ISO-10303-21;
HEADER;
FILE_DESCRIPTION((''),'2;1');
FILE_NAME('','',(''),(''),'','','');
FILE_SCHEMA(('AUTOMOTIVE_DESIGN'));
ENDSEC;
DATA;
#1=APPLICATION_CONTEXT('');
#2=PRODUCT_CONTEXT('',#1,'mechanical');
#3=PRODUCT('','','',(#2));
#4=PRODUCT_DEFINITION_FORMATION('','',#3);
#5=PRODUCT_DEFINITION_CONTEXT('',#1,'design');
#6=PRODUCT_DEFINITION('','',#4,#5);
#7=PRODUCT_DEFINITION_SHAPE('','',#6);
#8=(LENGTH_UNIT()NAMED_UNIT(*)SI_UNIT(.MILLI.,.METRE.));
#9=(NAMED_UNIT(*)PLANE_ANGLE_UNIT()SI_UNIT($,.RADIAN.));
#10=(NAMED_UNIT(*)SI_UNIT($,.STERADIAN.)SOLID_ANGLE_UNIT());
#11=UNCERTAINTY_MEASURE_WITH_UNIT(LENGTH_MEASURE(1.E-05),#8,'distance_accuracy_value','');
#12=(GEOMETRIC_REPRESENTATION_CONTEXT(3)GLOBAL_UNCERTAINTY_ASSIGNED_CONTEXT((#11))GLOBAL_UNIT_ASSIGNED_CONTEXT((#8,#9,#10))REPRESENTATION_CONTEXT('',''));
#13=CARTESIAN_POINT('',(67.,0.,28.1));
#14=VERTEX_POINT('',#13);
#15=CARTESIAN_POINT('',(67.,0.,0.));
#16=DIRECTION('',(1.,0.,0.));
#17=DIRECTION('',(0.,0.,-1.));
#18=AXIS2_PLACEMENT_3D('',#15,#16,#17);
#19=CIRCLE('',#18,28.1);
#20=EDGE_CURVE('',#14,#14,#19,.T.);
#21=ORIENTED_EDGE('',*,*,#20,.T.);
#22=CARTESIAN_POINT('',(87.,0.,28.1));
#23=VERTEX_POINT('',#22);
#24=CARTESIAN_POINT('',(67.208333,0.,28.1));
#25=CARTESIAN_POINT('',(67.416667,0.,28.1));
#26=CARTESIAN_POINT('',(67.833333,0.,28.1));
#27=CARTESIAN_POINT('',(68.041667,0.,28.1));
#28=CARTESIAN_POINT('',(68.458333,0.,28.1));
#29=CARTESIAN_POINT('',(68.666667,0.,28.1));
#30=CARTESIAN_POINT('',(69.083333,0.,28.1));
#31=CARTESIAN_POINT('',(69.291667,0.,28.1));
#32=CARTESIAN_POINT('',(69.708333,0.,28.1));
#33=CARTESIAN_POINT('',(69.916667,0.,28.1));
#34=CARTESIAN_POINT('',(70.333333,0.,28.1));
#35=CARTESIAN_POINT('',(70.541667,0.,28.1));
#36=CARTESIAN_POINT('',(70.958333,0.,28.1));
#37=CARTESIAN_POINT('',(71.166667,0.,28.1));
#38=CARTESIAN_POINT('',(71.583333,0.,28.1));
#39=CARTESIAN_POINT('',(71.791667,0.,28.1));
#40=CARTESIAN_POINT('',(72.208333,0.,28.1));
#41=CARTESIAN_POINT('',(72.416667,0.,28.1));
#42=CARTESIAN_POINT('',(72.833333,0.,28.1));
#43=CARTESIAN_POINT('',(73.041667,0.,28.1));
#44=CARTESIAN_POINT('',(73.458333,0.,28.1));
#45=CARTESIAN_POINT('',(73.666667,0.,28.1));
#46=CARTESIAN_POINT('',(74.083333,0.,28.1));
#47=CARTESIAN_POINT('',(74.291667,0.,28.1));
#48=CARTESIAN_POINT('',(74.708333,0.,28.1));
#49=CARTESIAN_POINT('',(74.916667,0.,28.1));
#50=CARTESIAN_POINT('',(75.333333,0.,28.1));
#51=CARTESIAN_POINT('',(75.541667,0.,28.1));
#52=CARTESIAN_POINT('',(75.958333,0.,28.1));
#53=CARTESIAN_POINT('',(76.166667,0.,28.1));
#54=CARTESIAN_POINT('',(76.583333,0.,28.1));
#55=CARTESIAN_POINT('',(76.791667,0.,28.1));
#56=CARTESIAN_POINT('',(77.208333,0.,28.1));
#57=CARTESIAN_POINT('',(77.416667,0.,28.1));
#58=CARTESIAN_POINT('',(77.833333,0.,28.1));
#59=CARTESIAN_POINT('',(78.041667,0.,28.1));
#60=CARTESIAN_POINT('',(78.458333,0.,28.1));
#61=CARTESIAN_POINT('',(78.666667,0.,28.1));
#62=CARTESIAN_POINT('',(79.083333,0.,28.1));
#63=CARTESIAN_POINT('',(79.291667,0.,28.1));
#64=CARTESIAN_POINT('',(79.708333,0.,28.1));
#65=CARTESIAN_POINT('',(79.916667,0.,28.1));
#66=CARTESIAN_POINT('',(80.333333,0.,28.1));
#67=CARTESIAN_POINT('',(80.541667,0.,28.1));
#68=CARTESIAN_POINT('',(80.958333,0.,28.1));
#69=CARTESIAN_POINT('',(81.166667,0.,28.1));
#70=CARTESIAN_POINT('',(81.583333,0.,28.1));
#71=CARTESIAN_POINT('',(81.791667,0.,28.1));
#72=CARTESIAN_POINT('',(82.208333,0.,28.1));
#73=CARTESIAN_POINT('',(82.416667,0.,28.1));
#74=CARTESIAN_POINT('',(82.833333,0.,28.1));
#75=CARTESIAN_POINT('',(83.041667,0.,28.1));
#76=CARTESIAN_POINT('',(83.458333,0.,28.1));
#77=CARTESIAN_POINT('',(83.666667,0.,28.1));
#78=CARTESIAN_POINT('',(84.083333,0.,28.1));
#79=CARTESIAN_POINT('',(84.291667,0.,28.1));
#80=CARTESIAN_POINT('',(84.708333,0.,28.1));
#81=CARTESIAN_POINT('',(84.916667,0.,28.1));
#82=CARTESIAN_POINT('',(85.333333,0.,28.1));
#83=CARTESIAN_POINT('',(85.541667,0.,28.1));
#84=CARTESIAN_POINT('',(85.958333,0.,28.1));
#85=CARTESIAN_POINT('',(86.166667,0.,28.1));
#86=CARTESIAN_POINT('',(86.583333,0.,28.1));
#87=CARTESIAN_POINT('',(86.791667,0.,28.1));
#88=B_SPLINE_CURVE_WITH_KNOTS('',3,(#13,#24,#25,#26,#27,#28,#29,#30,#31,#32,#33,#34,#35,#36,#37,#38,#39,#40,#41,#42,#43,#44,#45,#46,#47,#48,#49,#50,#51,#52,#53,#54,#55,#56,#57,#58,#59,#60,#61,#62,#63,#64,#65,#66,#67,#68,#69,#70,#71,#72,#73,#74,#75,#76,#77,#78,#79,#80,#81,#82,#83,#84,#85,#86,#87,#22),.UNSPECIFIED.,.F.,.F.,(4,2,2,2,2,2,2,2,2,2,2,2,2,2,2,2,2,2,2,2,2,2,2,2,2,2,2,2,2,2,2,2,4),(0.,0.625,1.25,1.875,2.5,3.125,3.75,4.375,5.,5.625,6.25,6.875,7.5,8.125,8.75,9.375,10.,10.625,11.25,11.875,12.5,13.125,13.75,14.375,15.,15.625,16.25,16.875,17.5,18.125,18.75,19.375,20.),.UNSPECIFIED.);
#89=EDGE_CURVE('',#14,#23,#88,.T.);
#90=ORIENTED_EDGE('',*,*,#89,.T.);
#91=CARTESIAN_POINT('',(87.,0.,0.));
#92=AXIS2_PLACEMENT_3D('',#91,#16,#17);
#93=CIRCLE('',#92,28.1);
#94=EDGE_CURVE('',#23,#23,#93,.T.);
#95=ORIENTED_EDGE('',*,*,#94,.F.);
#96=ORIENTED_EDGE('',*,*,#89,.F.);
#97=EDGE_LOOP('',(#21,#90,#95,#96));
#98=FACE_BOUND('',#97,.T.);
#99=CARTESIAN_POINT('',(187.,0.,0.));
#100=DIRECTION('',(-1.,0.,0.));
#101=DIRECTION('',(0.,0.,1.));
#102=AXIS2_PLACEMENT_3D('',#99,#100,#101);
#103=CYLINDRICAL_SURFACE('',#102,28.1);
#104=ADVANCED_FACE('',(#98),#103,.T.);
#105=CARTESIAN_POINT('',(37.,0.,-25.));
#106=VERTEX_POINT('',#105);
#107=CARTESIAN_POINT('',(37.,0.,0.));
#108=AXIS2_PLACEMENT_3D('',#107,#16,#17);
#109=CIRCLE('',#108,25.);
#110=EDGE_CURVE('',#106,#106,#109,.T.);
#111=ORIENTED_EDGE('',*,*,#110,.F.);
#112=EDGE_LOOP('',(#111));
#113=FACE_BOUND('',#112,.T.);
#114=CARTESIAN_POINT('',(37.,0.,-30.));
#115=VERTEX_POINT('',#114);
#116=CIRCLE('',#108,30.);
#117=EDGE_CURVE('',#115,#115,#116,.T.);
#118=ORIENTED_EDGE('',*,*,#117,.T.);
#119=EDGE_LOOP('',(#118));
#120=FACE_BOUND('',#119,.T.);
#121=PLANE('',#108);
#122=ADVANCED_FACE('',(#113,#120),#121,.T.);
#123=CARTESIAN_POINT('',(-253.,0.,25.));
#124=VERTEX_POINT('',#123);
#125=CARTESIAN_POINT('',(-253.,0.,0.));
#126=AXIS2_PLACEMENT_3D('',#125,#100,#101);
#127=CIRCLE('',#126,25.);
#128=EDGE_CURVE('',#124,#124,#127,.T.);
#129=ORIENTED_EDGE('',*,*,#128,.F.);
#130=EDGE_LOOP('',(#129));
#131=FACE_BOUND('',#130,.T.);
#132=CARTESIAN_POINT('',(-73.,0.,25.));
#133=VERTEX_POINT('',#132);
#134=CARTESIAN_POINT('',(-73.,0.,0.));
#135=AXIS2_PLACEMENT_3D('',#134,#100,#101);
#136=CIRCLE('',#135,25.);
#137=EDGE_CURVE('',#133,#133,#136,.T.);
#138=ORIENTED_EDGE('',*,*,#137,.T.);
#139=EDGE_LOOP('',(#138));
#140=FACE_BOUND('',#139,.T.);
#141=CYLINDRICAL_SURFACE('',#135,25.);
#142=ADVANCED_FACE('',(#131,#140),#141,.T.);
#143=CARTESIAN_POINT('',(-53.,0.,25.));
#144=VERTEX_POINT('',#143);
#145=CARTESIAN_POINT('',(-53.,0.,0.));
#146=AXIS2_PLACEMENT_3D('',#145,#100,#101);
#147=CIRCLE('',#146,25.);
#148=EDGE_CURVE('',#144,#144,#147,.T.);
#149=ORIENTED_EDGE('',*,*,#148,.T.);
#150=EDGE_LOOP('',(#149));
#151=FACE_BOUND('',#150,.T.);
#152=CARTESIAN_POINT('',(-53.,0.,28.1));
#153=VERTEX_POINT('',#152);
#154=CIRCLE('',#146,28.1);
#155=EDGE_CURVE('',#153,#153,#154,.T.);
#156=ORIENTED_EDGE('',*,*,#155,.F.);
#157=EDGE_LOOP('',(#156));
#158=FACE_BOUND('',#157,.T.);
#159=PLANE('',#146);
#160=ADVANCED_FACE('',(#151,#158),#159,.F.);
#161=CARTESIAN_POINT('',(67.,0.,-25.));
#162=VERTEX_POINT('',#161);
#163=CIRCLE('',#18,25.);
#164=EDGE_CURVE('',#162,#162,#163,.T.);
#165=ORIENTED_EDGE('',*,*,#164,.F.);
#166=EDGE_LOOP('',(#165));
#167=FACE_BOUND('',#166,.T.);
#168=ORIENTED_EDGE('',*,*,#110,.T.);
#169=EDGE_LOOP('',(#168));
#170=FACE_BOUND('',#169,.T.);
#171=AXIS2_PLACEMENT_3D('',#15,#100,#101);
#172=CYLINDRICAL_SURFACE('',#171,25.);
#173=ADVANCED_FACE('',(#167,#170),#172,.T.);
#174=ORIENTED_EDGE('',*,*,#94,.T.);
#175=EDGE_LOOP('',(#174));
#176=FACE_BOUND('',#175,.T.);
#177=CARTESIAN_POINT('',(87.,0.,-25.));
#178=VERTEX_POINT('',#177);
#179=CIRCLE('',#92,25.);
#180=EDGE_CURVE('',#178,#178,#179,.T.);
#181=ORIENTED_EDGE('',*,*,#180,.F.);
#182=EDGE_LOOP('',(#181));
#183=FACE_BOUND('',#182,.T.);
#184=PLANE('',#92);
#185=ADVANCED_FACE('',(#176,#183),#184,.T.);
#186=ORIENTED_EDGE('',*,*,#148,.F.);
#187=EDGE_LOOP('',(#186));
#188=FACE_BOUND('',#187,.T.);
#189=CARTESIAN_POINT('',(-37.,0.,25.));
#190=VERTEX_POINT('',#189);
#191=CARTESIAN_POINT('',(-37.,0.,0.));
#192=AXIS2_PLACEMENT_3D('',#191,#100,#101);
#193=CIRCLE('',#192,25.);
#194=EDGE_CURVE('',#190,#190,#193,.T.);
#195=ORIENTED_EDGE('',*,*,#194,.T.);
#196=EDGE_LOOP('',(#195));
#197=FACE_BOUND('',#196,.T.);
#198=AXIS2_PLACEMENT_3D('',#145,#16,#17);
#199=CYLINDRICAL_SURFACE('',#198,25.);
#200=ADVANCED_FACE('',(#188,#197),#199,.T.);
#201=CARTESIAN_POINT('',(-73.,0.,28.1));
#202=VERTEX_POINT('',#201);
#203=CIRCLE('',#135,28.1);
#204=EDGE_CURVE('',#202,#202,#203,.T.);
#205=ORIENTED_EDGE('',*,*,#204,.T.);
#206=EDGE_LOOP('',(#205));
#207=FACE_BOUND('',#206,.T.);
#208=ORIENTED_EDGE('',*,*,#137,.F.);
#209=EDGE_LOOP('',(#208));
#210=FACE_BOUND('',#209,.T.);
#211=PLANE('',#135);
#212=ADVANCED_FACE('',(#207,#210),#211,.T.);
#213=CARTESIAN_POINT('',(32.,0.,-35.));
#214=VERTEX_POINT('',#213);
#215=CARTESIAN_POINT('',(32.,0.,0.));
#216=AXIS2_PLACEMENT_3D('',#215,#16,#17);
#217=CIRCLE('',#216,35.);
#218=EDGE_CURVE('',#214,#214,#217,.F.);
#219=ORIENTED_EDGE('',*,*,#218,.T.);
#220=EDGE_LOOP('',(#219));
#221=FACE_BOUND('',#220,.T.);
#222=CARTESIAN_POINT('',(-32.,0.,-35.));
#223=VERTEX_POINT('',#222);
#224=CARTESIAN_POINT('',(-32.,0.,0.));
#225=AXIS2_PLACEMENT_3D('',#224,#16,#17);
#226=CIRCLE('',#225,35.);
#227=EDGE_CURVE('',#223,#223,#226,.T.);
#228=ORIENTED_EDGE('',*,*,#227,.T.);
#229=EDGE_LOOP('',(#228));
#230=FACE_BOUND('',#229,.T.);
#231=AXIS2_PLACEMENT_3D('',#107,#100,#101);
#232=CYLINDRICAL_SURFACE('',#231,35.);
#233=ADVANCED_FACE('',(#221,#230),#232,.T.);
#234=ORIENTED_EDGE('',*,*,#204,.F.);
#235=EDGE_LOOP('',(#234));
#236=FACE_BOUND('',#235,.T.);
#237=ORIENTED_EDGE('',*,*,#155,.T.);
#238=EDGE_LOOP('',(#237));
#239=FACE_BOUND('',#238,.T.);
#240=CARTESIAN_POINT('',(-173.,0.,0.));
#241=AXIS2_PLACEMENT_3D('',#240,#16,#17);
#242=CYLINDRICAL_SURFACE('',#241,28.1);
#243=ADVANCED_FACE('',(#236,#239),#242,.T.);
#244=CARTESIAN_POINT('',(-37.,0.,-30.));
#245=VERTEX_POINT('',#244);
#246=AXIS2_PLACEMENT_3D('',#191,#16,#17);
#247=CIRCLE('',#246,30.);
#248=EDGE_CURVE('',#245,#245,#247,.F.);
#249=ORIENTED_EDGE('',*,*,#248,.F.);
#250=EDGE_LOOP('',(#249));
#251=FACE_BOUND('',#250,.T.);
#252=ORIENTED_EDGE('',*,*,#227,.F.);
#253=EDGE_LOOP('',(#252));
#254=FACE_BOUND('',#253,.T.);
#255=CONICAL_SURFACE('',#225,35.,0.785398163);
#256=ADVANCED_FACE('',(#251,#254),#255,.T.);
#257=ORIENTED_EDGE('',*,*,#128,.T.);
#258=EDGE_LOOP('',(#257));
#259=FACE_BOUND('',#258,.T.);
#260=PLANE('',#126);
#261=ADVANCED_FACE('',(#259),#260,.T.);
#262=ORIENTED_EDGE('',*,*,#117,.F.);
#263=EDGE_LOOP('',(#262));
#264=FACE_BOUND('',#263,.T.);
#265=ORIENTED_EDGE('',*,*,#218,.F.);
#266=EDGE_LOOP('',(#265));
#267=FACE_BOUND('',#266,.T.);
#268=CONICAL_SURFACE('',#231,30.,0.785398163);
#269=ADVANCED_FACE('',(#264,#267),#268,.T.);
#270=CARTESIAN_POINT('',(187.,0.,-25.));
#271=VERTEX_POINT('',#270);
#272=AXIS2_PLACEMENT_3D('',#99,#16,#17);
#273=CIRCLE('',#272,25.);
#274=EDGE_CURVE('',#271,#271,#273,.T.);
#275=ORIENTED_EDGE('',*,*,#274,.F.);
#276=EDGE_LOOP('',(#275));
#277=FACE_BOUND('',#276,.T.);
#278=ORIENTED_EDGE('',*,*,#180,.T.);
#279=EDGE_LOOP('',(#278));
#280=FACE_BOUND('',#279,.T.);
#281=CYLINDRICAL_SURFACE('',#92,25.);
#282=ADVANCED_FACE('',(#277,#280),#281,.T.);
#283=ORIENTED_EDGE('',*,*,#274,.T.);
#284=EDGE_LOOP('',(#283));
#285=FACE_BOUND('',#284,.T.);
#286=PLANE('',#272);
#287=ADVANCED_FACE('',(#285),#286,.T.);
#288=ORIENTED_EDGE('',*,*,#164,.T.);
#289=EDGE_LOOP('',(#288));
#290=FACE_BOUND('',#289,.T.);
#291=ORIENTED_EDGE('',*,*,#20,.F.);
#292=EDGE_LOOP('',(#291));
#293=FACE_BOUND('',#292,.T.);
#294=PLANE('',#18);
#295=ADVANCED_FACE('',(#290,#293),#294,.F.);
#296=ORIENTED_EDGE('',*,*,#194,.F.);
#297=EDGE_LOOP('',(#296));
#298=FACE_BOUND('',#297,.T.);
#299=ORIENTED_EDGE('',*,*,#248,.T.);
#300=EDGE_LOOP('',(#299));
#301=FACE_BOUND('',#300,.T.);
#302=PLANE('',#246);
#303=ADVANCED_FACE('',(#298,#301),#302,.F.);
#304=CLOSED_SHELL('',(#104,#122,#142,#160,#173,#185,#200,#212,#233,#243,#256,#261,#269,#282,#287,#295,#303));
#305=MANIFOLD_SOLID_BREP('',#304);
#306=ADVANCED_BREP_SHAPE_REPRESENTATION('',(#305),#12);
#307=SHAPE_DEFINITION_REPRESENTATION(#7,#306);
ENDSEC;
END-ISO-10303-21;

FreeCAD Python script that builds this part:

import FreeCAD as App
import Part
import Sketcher
Q = App.Units.Quantity


def edges_at(feature, points):
    """Names of the edges that pass closest to the given points."""
    edges = feature.Shape.Edges
    near = lambda p: min(range(len(edges)), key=lambda i: edges[i].distToShape(Part.Vertex(*p))[0])
    return sorted({f"Edge{near(p) + 1}" for p in points})

doc = App.newDocument("Part")
body = doc.addObject("PartDesign::Body", "Body")

sketch1 = body.newObject("Sketcher::SketchObject", "Sketch")
sketch1.AttachmentSupport = (doc.getObject("YZ_Plane"), [""])
sketch1.MapMode = "FlatFace"
sketch1.addGeometry(Part.Circle(App.Vector(0, 0, 0), App.Vector(0, 0, 1), 35), False)
sketch1.addConstraint([
    Sketcher.Constraint("Coincident", 0, 3, -1, 1),
    Sketcher.Constraint("Diameter", 0, Q("70 mm")),
])
pad1 = body.newObject("PartDesign::Pad", "Pad")
pad1.Profile = sketch1
pad1.Length = 74
pad1.Midplane = True
doc.recompute()

chamfer = body.newObject("PartDesign::Chamfer", "Chamfer")
chamfer.Base = (pad1, edges_at(pad1, [(-37, 0, 35), (37, 0, 35)]))
chamfer.Size = 5

sketch2 = body.newObject("Sketcher::SketchObject", "Sketch001")
sketch2.AttachmentSupport = (doc.getObject("YZ_Plane"), [""])
sketch2.MapMode = "FlatFace"
sketch2.AttachmentOffset = App.Placement(App.Vector(0, 0, -37), App.Rotation())
sketch2.addGeometry(Part.Circle(App.Vector(0, 0, 0), App.Vector(0, 0, 1), 25), False)
sketch2.addConstraint([
    Sketcher.Constraint("Coincident", 0, 3, -1, 1),
    Sketcher.Constraint("Diameter", 0, Q("50 mm")),
])
pad2 = body.newObject("PartDesign::Pad", "Pad001")
pad2.Profile = sketch2
pad2.Length = 16
pad2.Reversed = True

sketch3 = body.newObject("Sketcher::SketchObject", "Sketch002")
sketch3.AttachmentSupport = (doc.getObject("YZ_Plane"), [""])
sketch3.MapMode = "FlatFace"
sketch3.AttachmentOffset = App.Placement(App.Vector(0, 0, -53), App.Rotation())
sketch3.addGeometry(Part.Circle(App.Vector(0, 0, 0), App.Vector(0, 0, 1), 28), False)
sketch3.addConstraint([
    Sketcher.Constraint("Coincident", 0, 3, -1, 1),
    Sketcher.Constraint("Diameter", 0, Q("56.2 mm")),
])
pad3 = body.newObject("PartDesign::Pad", "Pad002")
pad3.Profile = sketch3
pad3.Length = 120
pad3.Reversed = True

sketch4 = body.newObject("Sketcher::SketchObject", "Sketch003")
sketch4.AttachmentSupport = (doc.getObject("YZ_Plane"), [""])
sketch4.MapMode = "FlatFace"
sketch4.AttachmentOffset = App.Placement(App.Vector(0, 0, 67), App.Rotation())
sketch4.addGeometry(Part.Circle(App.Vector(0, 0, 0), App.Vector(0, 0, 1), 25), False)
sketch4.addConstraint([
    Sketcher.Constraint("Coincident", 0, 3, -1, 1),
    Sketcher.Constraint("Diameter", 0, Q("50 mm")),
])
pad4 = body.newObject("PartDesign::Pad", "Pad003")
pad4.Profile = sketch4
pad4.Length = 30
pad4.Reversed = True

sketch5 = body.newObject("Sketcher::SketchObject", "Sketch004")
sketch5.AttachmentSupport = (doc.getObject("YZ_Plane"), [""])
sketch5.MapMode = "FlatFace"
sketch5.AttachmentOffset = App.Placement(App.Vector(0, 0, 187), App.Rotation())
sketch5.addGeometry(Part.Circle(App.Vector(0, 0, 0), App.Vector(0, 0, 1), 28), False)
sketch5.addConstraint([
    Sketcher.Constraint("Coincident", 0, 3, -1, 1),
    Sketcher.Constraint("Diameter", 0, Q("56.2 mm")),
])
pad5 = body.newObject("PartDesign::Pad", "Pad004")
pad5.Profile = sketch5
pad5.Length = 120
pad5.Reversed = True

sketch6 = body.newObject("Sketcher::SketchObject", "Sketch005")
sketch6.AttachmentSupport = (doc.getObject("YZ_Plane"), [""])
sketch6.MapMode = "FlatFace"
sketch6.AttachmentOffset = App.Placement(App.Vector(0, 0, -73), App.Rotation())
sketch6.addGeometry([
    Part.Circle(App.Vector(0, 0, 0), App.Vector(0, 0, 1), 28),
    Part.Circle(App.Vector(0, 0, 0), App.Vector(0, 0, 1), 25),
], False)
sketch6.addConstraint([
    Sketcher.Constraint("Coincident", 0, 3, -1, 1),
    Sketcher.Constraint("Coincident", 1, 3, -1, 1),
    Sketcher.Constraint("Diameter", 1, Q("50 mm")),
    Sketcher.Constraint("Diameter", 0, Q("56.2 mm")),
])
pocket1 = body.newObject("PartDesign::Pocket", "Pocket")
pocket1.Profile = sketch6
pocket1.Length = 100

sketch7 = body.newObject("Sketcher::SketchObject", "Sketch006")
sketch7.AttachmentSupport = (doc.getObject("YZ_Plane"), [""])
sketch7.MapMode = "FlatFace"
sketch7.AttachmentOffset = App.Placement(App.Vector(0, 0, 187), App.Rotation())
sketch7.addGeometry([
    Part.Circle(App.Vector(0, 0, 0), App.Vector(0, 0, 1), 28),
    Part.Circle(App.Vector(0, 0, 0), App.Vector(0, 0, 1), 25),
], False)
sketch7.addConstraint([
    Sketcher.Constraint("Coincident", 0, 3, -1, 1),
    Sketcher.Constraint("Coincident", 1, 3, -1, 1),
    Sketcher.Constraint("Diameter", 1, Q("50 mm")),
    Sketcher.Constraint("Diameter", 0, Q("56.2 mm")),
])
pocket2 = body.newObject("PartDesign::Pocket", "Pocket001")
pocket2.Profile = sketch7
pocket2.Length = 100

sketch8 = body.newObject("Sketcher::SketchObject", "Sketch007")
sketch8.AttachmentSupport = (doc.getObject("YZ_Plane"), [""])
sketch8.MapMode = "FlatFace"
sketch8.AttachmentOffset = App.Placement(App.Vector(0, 0, -173), App.Rotation())
sketch8.addGeometry(Part.Circle(App.Vector(0, 0, 0), App.Vector(0, 0, 1), 25), False)
sketch8.addConstraint([
    Sketcher.Constraint("Coincident", 0, 3, -1, 1),
    Sketcher.Constraint("Diameter", 0, Q("50 mm")),
])
pad6 = body.newObject("PartDesign::Pad", "Pad005")
pad6.Profile = sketch8
pad6.Length = 80
pad6.Reversed = True

doc.recompute()
